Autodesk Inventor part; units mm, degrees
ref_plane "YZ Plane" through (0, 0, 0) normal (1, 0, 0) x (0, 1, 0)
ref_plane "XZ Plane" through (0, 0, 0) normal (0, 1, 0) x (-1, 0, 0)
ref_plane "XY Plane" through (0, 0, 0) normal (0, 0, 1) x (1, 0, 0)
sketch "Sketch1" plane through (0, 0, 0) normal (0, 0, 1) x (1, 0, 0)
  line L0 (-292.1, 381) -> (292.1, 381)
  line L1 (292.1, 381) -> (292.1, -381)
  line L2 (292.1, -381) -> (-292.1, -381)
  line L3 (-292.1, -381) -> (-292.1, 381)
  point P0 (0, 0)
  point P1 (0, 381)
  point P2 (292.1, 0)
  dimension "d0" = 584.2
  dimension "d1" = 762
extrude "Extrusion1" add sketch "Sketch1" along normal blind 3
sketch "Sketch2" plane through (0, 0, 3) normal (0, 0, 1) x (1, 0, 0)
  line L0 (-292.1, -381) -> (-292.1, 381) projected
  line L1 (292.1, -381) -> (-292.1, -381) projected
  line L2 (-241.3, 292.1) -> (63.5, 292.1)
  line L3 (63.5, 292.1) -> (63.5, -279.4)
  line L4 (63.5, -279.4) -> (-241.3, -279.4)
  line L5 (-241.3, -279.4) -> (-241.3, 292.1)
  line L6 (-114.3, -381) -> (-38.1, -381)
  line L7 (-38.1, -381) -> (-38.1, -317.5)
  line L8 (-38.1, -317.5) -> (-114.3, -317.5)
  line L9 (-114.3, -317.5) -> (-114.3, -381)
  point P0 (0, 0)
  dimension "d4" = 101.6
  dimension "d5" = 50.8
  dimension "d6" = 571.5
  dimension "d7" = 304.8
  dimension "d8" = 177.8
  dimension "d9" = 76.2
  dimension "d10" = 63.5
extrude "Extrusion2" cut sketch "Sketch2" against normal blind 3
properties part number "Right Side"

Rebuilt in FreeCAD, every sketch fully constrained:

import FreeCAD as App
import Part
import Sketcher

V = App.Vector
Q = App.Units.Quantity


def add_polygon(sketch, points):
    """Adds a closed chain of lines whose ends are joined by coincident constraints."""
    first, n = sketch.GeometryCount, len(points)
    for a, b in zip(points, points[1:] + points[:1]):
        sketch.addGeometry(Part.LineSegment(App.Vector(*a, 0), App.Vector(*b, 0)), False)
    for i in range(n):
        sketch.addConstraint(Sketcher.Constraint("Coincident", first + i, 2, first + (i + 1) % n, 1))

doc = App.newDocument("Part")
body = doc.addObject("PartDesign::Body", "Body")

sketch1 = doc.addObject("Sketcher::SketchObject", "Sketch")
body.addObject(sketch1)
sketch1.AttachmentSupport = (doc.XY_Plane, [""])
sketch1.MapMode = "FlatFace"
add_polygon(sketch1, [(292, 381), (-292, 381), (-292, -381), (292, -381)])
sketch1.addConstraint(Sketcher.Constraint("Horizontal", 0))
sketch1.addConstraint(Sketcher.Constraint("Vertical", 1))
sketch1.addConstraint(Sketcher.Constraint("Horizontal", 2))
sketch1.addConstraint(Sketcher.Constraint("Vertical", 3))
sketch1.addConstraint(Sketcher.Constraint("Symmetric", 0, 2, 2, 2, -1, 1))
sketch1.addConstraint(Sketcher.Constraint("DistanceX", 0, 2, 0, 1, Q("23 in")))
sketch1.addConstraint(Sketcher.Constraint("DistanceY", 1, 2, 1, 1, Q("30 in")))
pad1 = doc.addObject("PartDesign::Pad", "Pad")
body.addObject(pad1)
pad1.Profile = sketch1
pad1.Length = Q("0.1181102 in")

sketch2 = doc.addObject("Sketcher::SketchObject", "Sketch001")
body.addObject(sketch2)
sketch2.AttachmentSupport = (doc.XY_Plane, [""])
sketch2.MapMode = "FlatFace"
sketch2.AttachmentOffset = App.Placement(V(0, 0, 0.1181102 * 25.4), App.Rotation())
add_polygon(sketch2, [(-114, -381), (-38, -381), (-38, -318), (-114, -318)])
add_polygon(sketch2, [(64, 292), (-241, 292), (-241, -279), (64, -279)])
sketch2.addConstraint(Sketcher.Constraint("Horizontal", 0))
sketch2.addConstraint(Sketcher.Constraint("Vertical", 1))
sketch2.addConstraint(Sketcher.Constraint("Horizontal", 2))
sketch2.addConstraint(Sketcher.Constraint("Vertical", 3))
sketch2.addConstraint(Sketcher.Constraint("Horizontal", 4))
sketch2.addConstraint(Sketcher.Constraint("Vertical", 5))
sketch2.addConstraint(Sketcher.Constraint("Horizontal", 6))
sketch2.addConstraint(Sketcher.Constraint("Vertical", 7))
sketch2.addConstraint(Sketcher.Constraint("DistanceX", 0, 1, 0, 2, Q("3 in")))
sketch2.addConstraint(Sketcher.Constraint("DistanceX", 4, 2, 4, 1, Q("12 in")))
sketch2.addConstraint(Sketcher.Constraint("DistanceY", 1, 1, 1, 2, Q("2.5 in")))
sketch2.addConstraint(Sketcher.Constraint("DistanceY", 5, 2, 5, 1, Q("22.5 in")))
sketch2.addConstraint(Sketcher.Constraint("DistanceY", 3, 2, 5, 2, Q("4 in")))
sketch2.addConstraint(Sketcher.Constraint("DistanceX", 1, 2, 6, 2, Q("4 in")))
sketch2.addConstraint(Sketcher.Constraint("DistanceX", -1, 1, 6, 2, Q("2.5 in")))
sketch2.addConstraint(Sketcher.Constraint("DistanceY", 0, 2, -1, 1, Q("15 in")))
pocket1 = doc.addObject("PartDesign::Pocket", "Pocket")
body.addObject(pocket1)
pocket1.Profile = sketch2
pocket1.Length = Q("0.1181102 in")

doc.recompute()
